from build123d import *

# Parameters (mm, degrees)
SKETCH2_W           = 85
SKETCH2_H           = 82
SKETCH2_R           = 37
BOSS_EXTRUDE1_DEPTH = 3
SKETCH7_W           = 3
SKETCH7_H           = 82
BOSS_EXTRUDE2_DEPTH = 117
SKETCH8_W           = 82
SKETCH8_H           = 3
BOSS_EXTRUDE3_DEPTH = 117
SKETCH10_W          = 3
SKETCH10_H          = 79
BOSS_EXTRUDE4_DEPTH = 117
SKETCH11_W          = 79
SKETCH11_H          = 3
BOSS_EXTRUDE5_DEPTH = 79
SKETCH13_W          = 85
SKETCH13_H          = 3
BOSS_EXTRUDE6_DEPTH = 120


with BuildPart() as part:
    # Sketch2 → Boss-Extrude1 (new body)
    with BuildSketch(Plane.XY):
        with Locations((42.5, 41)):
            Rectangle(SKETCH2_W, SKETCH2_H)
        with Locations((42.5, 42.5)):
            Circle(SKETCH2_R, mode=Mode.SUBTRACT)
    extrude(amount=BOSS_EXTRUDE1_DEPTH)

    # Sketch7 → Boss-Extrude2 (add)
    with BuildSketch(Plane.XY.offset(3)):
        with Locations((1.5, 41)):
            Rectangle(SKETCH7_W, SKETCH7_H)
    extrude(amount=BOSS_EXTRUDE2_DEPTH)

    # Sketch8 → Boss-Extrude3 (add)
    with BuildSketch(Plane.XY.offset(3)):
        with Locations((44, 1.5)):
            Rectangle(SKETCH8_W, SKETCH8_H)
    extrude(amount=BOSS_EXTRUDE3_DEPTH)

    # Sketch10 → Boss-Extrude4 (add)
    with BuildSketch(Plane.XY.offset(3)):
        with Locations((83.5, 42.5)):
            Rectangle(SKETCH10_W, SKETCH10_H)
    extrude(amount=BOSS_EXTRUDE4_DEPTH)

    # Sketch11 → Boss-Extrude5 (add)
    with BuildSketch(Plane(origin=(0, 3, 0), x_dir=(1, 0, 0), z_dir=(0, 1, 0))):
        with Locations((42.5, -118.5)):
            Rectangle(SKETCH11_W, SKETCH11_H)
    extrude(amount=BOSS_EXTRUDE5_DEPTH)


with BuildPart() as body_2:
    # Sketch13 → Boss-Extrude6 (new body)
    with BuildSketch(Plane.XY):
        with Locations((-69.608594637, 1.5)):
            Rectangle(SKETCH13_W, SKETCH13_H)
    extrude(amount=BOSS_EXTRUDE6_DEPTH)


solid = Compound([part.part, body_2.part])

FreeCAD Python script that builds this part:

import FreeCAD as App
import Part
import Sketcher
from FreeCAD import Vector

doc = App.newDocument("Part")
body = doc.addObject("PartDesign::Body", "Body")

# Sketch on XY plane
sketch1 = doc.addObject("Sketcher::SketchObject", "Sketch")
body.addObject(sketch1)
sketch1.AttachmentSupport = (doc.XY_Plane, [""])
sketch1.MapMode = "FlatFace"
sketch1.addGeometry([
    Part.LineSegment(Vector(0, 82, 0), Vector(0, 0, 0)),  # 0
    Part.LineSegment(Vector(0, 0, 0), Vector(85, 0, 0)),  # 1
    Part.LineSegment(Vector(85, 0, 0), Vector(85, 82, 0)),  # 2
    Part.LineSegment(Vector(85, 82, 0), Vector(0, 82, 0)),  # 3
    Part.Circle(Vector(42, 42, 0), Vector(0, 0, 1), 37),  # 4
], False)
sketch1.addConstraint([
    Sketcher.Constraint("Coincident", 0, 2, 1, 1),
    Sketcher.Constraint("Coincident", 1, 2, 2, 1),
    Sketcher.Constraint("Coincident", 2, 2, 3, 1),
    Sketcher.Constraint("Coincident", 3, 2, 0, 1),
    Sketcher.Constraint("Vertical", 0),
    Sketcher.Constraint("Horizontal", 1),
    Sketcher.Constraint("Vertical", 2),
    Sketcher.Constraint("Horizontal", 3),
    Sketcher.Constraint("Coincident", 0, 2, -1, 1),
    Sketcher.Constraint("Diameter", 4, 74.0),
    Sketcher.Constraint("DistanceX", 1, 1, 1, 2, 85.0),
    Sketcher.Constraint("DistanceY", 0, 2, 0, 1, 82.0),
    Sketcher.Constraint("DistanceX", -1, 1, 4, 3, 42.5),
    Sketcher.Constraint("DistanceY", -1, 1, 4, 3, 42.5),
])
pad1 = doc.addObject("PartDesign::Pad", "Pad")
body.addObject(pad1)
pad1.Profile = sketch1
pad1.Length = 3

# Sketch on XY plane
sketch2 = doc.addObject("Sketcher::SketchObject", "Sketch001")
body.addObject(sketch2)
sketch2.AttachmentSupport = (doc.XY_Plane, [""])
sketch2.MapMode = "FlatFace"
sketch2.AttachmentOffset = App.Placement(Vector(0, 0, 3), App.Rotation())
sketch2.addGeometry([
    Part.LineSegment(Vector(0, 82, 0), Vector(0, 0, 0)),
    Part.LineSegment(Vector(0, 0, 0), Vector(3, 0, 0)),
    Part.LineSegment(Vector(3, 0, 0), Vector(3, 82, 0)),
    Part.LineSegment(Vector(3, 82, 0), Vector(0, 82, 0)),
], False)
sketch2.addConstraint([
    Sketcher.Constraint("Coincident", 0, 2, 1, 1),
    Sketcher.Constraint("Coincident", 1, 2, 2, 1),
    Sketcher.Constraint("Coincident", 2, 2, 3, 1),
    Sketcher.Constraint("Coincident", 3, 2, 0, 1),
    Sketcher.Constraint("Vertical", 0),
    Sketcher.Constraint("Horizontal", 1),
    Sketcher.Constraint("Vertical", 2),
    Sketcher.Constraint("Horizontal", 3),
    Sketcher.Constraint("Coincident", 0, 2, -1, 1),
    Sketcher.Constraint("DistanceX", 1, 1, 1, 2, 3.0),
    Sketcher.Constraint("DistanceY", 0, 2, 0, 1, 82.0),
])
pad2 = doc.addObject("PartDesign::Pad", "Pad001")
body.addObject(pad2)
pad2.Profile = sketch2
pad2.Length = 117

# Sketch on XY plane
sketch3 = doc.addObject("Sketcher::SketchObject", "Sketch002")
body.addObject(sketch3)
sketch3.AttachmentSupport = (doc.XY_Plane, [""])
sketch3.MapMode = "FlatFace"
sketch3.AttachmentOffset = App.Placement(Vector(0, 0, 3), App.Rotation())
sketch3.addGeometry([
    Part.LineSegment(Vector(3, 3, 0), Vector(3, 0, 0)),
    Part.LineSegment(Vector(3, 0, 0), Vector(85, 0, 0)),
    Part.LineSegment(Vector(85, 0, 0), Vector(85, 3, 0)),
    Part.LineSegment(Vector(85, 3, 0), Vector(3, 3, 0)),
], False)
sketch3.addConstraint([
    Sketcher.Constraint("Coincident", 0, 2, 1, 1),
    Sketcher.Constraint("Coincident", 1, 2, 2, 1),
    Sketcher.Constraint("Coincident", 2, 2, 3, 1),
    Sketcher.Constraint("Coincident", 3, 2, 0, 1),
    Sketcher.Constraint("Vertical", 0),
    Sketcher.Constraint("Horizontal", 1),
    Sketcher.Constraint("Vertical", 2),
    Sketcher.Constraint("Horizontal", 3),
    Sketcher.Constraint("PointOnObject", 0, 2, -1),
    Sketcher.Constraint("DistanceX", 1, 1, 1, 2, 82.0),
    Sketcher.Constraint("DistanceY", 0, 2, 0, 1, 3.0),
    Sketcher.Constraint("DistanceX", -1, 1, 0, 2, 3.0),
])
pad3 = doc.addObject("PartDesign::Pad", "Pad002")
body.addObject(pad3)
pad3.Profile = sketch3
pad3.Length = 117

# Sketch on XY plane
sketch4 = doc.addObject("Sketcher::SketchObject", "Sketch003")
body.addObject(sketch4)
sketch4.AttachmentSupport = (doc.XY_Plane, [""])
sketch4.MapMode = "FlatFace"
sketch4.AttachmentOffset = App.Placement(Vector(0, 0, 3), App.Rotation())
sketch4.addGeometry([
    Part.LineSegment(Vector(82, 82, 0), Vector(82, 3, 0)),
    Part.LineSegment(Vector(82, 3, 0), Vector(85, 3, 0)),
    Part.LineSegment(Vector(85, 3, 0), Vector(85, 82, 0)),
    Part.LineSegment(Vector(85, 82, 0), Vector(82, 82, 0)),
], False)
sketch4.addConstraint([
    Sketcher.Constraint("Coincident", 0, 2, 1, 1),
    Sketcher.Constraint("Coincident", 1, 2, 2, 1),
    Sketcher.Constraint("Coincident", 2, 2, 3, 1),
    Sketcher.Constraint("Coincident", 3, 2, 0, 1),
    Sketcher.Constraint("Vertical", 0),
    Sketcher.Constraint("Horizontal", 1),
    Sketcher.Constraint("Vertical", 2),
    Sketcher.Constraint("Horizontal", 3),
    Sketcher.Constraint("DistanceX", 1, 1, 1, 2, 3.0),
    Sketcher.Constraint("DistanceY", 0, 2, 0, 1, 79.0),
    Sketcher.Constraint("DistanceX", -1, 1, 0, 2, 82.0),
    Sketcher.Constraint("DistanceY", -1, 1, 0, 2, 3.0),
])
pad4 = doc.addObject("PartDesign::Pad", "Pad003")
body.addObject(pad4)
pad4.Profile = sketch4
pad4.Length = 117

# Sketch on XZ plane
sketch5 = doc.addObject("Sketcher::SketchObject", "Sketch004")
body.addObject(sketch5)
sketch5.AttachmentSupport = (doc.XZ_Plane, [""])
sketch5.MapMode = "FlatFace"
sketch5.AttachmentOffset = App.Placement(Vector(0, 0, -3), App.Rotation())
sketch5.addGeometry([
    Part.LineSegment(Vector(3, 117, 0), Vector(3, 120, 0)),
    Part.LineSegment(Vector(3, 120, 0), Vector(82, 120, 0)),
    Part.LineSegment(Vector(82, 120, 0), Vector(82, 117, 0)),
    Part.LineSegment(Vector(82, 117, 0), Vector(3, 117, 0)),
], False)
sketch5.addConstraint([
    Sketcher.Constraint("Coincident", 0, 2, 1, 1),
    Sketcher.Constraint("Coincident", 1, 2, 2, 1),
    Sketcher.Constraint("Coincident", 2, 2, 3, 1),
    Sketcher.Constraint("Coincident", 3, 2, 0, 1),
    Sketcher.Constraint("Vertical", 0),
    Sketcher.Constraint("Horizontal", 1),
    Sketcher.Constraint("Vertical", 2),
    Sketcher.Constraint("Horizontal", 3),
    Sketcher.Constraint("DistanceX", 1, 1, 1, 2, 79.0),
    Sketcher.Constraint("DistanceY", 0, 1, 0, 2, 3.0),
    Sketcher.Constraint("DistanceX", -1, 1, 0, 2, 3.0),
    Sketcher.Constraint("DistanceY", -1, 1, 0, 2, 120.0),
])
pad5 = doc.addObject("PartDesign::Pad", "Pad004")
body.addObject(pad5)
pad5.Profile = sketch5
pad5.Length = 79
pad5.Reversed = True
body2 = doc.addObject("PartDesign::Body", "Body001")

# Sketch on XY plane
sketch6 = doc.addObject("Sketcher::SketchObject", "Sketch005")
body2.addObject(sketch6)
sketch6.AttachmentSupport = (doc.getObject("XY_Plane001"), [""])
sketch6.MapMode = "FlatFace"
sketch6.addGeometry([
    Part.LineSegment(Vector(-112.1, 3, 0), Vector(-112.1, 0, 0)),
    Part.LineSegment(Vector(-112.1, 0, 0), Vector(-27.1, 0, 0)),
    Part.LineSegment(Vector(-27.1, 0, 0), Vector(-27.1, 3, 0)),
    Part.LineSegment(Vector(-27.1, 3, 0), Vector(-112.1, 3, 0)),
], False)
sketch6.addConstraint([
    Sketcher.Constraint("Coincident", 0, 2, 1, 1),
    Sketcher.Constraint("Coincident", 1, 2, 2, 1),
    Sketcher.Constraint("Coincident", 2, 2, 3, 1),
    Sketcher.Constraint("Coincident", 3, 2, 0, 1),
    Sketcher.Constraint("Vertical", 0),
    Sketcher.Constraint("Horizontal", 1),
    Sketcher.Constraint("Vertical", 2),
    Sketcher.Constraint("Horizontal", 3),
    Sketcher.Constraint("PointOnObject", 0, 2, -1),
    Sketcher.Constraint("DistanceX", 1, 1, 1, 2, 85.0),
    Sketcher.Constraint("DistanceY", 0, 2, 0, 1, 3.0),
    Sketcher.Constraint("DistanceX", 0, 2, -1, 1, 112.108595),
])
pad6 = doc.addObject("PartDesign::Pad", "Pad005")
body2.addObject(pad6)
pad6.Profile = sketch6
pad6.Length = 120

doc.recompute()
